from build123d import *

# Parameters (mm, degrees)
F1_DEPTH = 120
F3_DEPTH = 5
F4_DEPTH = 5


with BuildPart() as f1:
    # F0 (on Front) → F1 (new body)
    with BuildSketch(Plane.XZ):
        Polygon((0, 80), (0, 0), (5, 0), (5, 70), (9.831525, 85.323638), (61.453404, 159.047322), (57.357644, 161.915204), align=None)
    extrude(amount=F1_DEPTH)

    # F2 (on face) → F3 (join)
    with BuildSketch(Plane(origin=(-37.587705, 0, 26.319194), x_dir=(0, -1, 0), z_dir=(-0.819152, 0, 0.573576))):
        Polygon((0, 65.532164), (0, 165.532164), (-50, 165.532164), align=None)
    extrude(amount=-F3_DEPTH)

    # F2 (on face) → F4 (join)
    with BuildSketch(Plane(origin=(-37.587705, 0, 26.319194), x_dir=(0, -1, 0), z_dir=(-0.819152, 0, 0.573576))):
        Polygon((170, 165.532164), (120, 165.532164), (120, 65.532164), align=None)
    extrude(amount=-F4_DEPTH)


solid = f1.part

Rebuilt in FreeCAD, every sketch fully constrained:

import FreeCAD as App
import Part
import Sketcher

V = App.Vector
Q = App.Units.Quantity


def add_polygon(sketch, points):
    """Adds a closed chain of lines whose ends are joined by coincident constraints."""
    first, n = sketch.GeometryCount, len(points)
    for a, b in zip(points, points[1:] + points[:1]):
        sketch.addGeometry(Part.LineSegment(App.Vector(*a, 0), App.Vector(*b, 0)), False)
    for i in range(n):
        sketch.addConstraint(Sketcher.Constraint("Coincident", first + i, 2, first + (i + 1) % n, 1))

doc = App.newDocument("Part")
params = doc.addObject("Spreadsheet::Sheet", "Params")
for row, (alias, value) in enumerate([
    ("sketch1_width", "5 mm"),
    ("sketch1_height", "80 mm"),
    ("sketch1_height2", "70 mm"),
    ("sketch1_length", "90 mm"),
    ("sketch1_length2", "5 mm"),
    ("pad1_length", "120 mm"),
    ("sketch2_width", "50 mm"),
    ("sketch2_height", "100 mm"),
    ("pad2_length", "5 mm"),
    ("sketch3_width", "50 mm"),
    ("sketch3_height", "100 mm"),
    ("pad3_length", "5 mm"),
], start=1):
    params.set(f"A{row}", alias)
    params.set(f"B{row}", "=" + value)
    params.setAlias(f"B{row}", alias)

body = doc.addObject("PartDesign::Body", "Body")

sketch1 = body.newObject("Sketcher::SketchObject", "Sketch")
sketch1.AttachmentSupport = (doc.getObject("XZ_Plane"), [""])
sketch1.MapMode = "FlatFace"
add_polygon(sketch1, [(0, 80), (0, 0), (5, 0), (5, 70), (9.8, 85.3), (61.5, 159), (57.4, 161.9)])
sketch1.addConstraint([
    Sketcher.Constraint("Vertical", 0),
    Sketcher.Constraint("Horizontal", 1),
    Sketcher.Constraint("Vertical", 2),
    Sketcher.Constraint("Coincident", 0, 2, -1, 1),
    Sketcher.Constraint("Perpendicular", 4, 5),
    Sketcher.Constraint("Perpendicular", 5, 6),
    Sketcher.Constraint("DistanceX", 1, 1, 1, 2, Q("5 mm")),
    Sketcher.Constraint("DistanceY", 0, 2, 0, 1, Q("80 mm")),
    Sketcher.Constraint("DistanceY", 2, 1, 2, 2, Q("70 mm")),
    Sketcher.Constraint("Angle", 4, Q("55 deg")),
    Sketcher.Constraint("Distance", 4, Q("90 mm")),
    Sketcher.Constraint("Distance", 5, Q("5 mm")),
    Sketcher.Constraint("Distance", 6, Q("100 mm")),
])
sketch1.setExpression("Constraints[13]", "Params.sketch1_width")
sketch1.setExpression("Constraints[14]", "Params.sketch1_height")
sketch1.setExpression("Constraints[15]", "Params.sketch1_height2")
sketch1.setExpression("Constraints[17]", "Params.sketch1_length")
sketch1.setExpression("Constraints[18]", "Params.sketch1_length2")
pad1 = body.newObject("PartDesign::Pad", "Pad")
pad1.Profile = sketch1
pad1.setExpression("Length", "Params.pad1_length")

sketch2 = body.newObject("Sketcher::SketchObject", "Sketch001")
sketch2.Placement = App.Placement(V(-37.587705, 0, 26.319194), App.Rotation(V(0, -1, 0), V(0.573576164, 0, 0.819152235), V(-0.819152235, 0, 0.573576164), "ZXY"))
add_polygon(sketch2, [(0, 66), (0, 166), (-50, 166)])
sketch2.addConstraint([
    Sketcher.Constraint("Vertical", 0),
    Sketcher.Constraint("Horizontal", 1),
    Sketcher.Constraint("PointOnObject", 0, 2, -2),
    Sketcher.Constraint("DistanceX", 1, 2, 1, 1, Q("50 mm")),
    Sketcher.Constraint("DistanceY", 0, 1, 0, 2, Q("100 mm")),
    Sketcher.Constraint("DistanceY", -1, 1, 0, 2, Q("165.532164 mm")),
])
sketch2.setExpression("Constraints[6]", "Params.sketch2_width")
sketch2.setExpression("Constraints[7]", "Params.sketch2_height")
pad2 = body.newObject("PartDesign::Pad", "Pad001")
pad2.Profile = sketch2
pad2.setExpression("Length", "Params.pad2_length")
pad2.Reversed = True

sketch3 = body.newObject("Sketcher::SketchObject", "Sketch002")
sketch3.Placement = App.Placement(V(-37.587705, 0, 26.319194), App.Rotation(V(0, -1, 0), V(0.573576164, 0, 0.819152235), V(-0.819152235, 0, 0.573576164), "ZXY"))
add_polygon(sketch3, [(170, 166), (120, 166), (120, 66)])
sketch3.addConstraint([
    Sketcher.Constraint("Horizontal", 0),
    Sketcher.Constraint("Vertical", 1),
    Sketcher.Constraint("DistanceX", 0, 2, 0, 1, Q("50 mm")),
    Sketcher.Constraint("DistanceY", 1, 2, 1, 1, Q("100 mm")),
    Sketcher.Constraint("DistanceX", -1, 1, 0, 2, Q("120 mm")),
    Sketcher.Constraint("DistanceY", -1, 1, 0, 2, Q("165.532164 mm")),
])
sketch3.setExpression("Constraints[5]", "Params.sketch3_width")
sketch3.setExpression("Constraints[6]", "Params.sketch3_height")
pad3 = body.newObject("PartDesign::Pad", "Pad002")
pad3.Profile = sketch3
pad3.setExpression("Length", "Params.pad3_length")
pad3.Reversed = True

doc.recompute()
